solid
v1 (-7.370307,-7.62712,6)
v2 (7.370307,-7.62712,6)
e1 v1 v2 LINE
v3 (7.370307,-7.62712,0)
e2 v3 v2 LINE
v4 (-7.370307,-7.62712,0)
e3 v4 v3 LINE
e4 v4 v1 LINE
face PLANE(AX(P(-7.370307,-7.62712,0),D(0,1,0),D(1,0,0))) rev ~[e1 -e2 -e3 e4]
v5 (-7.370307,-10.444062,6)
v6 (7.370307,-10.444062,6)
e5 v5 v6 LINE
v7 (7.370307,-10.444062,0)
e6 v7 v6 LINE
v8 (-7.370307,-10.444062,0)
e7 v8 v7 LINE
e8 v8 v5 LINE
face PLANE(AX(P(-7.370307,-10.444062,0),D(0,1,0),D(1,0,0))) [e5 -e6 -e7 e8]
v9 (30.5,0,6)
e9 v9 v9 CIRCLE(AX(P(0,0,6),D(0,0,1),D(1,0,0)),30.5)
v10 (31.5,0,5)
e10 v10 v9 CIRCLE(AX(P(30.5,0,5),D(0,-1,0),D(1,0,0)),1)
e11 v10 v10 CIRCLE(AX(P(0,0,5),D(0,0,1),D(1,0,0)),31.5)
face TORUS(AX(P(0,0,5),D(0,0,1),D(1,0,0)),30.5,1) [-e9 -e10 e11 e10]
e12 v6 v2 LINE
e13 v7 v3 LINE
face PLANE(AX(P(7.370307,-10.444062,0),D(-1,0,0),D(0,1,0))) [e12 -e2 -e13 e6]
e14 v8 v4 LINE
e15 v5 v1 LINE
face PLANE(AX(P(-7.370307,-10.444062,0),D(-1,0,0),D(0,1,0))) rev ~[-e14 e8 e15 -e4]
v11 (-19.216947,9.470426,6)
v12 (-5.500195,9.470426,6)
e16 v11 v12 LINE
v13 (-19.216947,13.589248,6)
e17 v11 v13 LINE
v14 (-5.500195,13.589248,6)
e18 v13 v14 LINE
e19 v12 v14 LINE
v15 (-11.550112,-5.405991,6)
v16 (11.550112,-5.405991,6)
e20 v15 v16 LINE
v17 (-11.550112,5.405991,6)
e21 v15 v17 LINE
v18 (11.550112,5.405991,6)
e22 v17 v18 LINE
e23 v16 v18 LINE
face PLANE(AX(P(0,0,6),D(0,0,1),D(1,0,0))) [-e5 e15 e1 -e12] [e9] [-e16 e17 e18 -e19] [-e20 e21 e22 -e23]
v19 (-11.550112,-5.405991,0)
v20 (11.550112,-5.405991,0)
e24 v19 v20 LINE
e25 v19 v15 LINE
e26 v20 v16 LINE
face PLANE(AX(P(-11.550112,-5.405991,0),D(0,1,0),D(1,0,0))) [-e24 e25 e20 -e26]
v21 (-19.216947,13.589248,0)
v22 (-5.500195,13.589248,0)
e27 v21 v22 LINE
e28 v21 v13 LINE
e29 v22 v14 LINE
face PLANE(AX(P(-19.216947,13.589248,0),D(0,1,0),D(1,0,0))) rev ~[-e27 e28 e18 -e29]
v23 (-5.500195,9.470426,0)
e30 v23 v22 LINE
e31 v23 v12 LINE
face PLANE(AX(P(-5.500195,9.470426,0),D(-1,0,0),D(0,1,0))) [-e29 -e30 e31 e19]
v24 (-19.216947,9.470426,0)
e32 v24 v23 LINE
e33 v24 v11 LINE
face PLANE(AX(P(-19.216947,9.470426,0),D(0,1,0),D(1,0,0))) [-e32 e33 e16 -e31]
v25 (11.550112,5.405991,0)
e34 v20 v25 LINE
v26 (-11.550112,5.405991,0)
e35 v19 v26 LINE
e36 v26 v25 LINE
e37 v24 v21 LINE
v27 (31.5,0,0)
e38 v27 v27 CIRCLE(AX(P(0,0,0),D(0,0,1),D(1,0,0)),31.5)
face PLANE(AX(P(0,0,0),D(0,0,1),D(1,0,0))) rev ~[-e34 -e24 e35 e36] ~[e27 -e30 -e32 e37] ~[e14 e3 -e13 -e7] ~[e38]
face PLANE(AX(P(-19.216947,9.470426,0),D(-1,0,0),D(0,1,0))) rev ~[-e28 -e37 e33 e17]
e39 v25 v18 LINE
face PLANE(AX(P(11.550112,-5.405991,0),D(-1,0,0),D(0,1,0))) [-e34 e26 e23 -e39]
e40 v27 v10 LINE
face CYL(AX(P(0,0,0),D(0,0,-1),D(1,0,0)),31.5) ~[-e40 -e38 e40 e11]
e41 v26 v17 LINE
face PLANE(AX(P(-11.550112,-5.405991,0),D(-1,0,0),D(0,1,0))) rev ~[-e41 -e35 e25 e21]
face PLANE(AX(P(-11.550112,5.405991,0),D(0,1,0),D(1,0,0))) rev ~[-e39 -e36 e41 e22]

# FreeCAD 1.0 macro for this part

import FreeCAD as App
import Part
import Sketcher


def edges_at(feature, points):
    """Names of the edges that pass closest to the given points."""
    edges = feature.Shape.Edges
    near = lambda p: min(range(len(edges)), key=lambda i: edges[i].distToShape(Part.Vertex(*p))[0])
    return sorted({f"Edge{near(p) + 1}" for p in points})


def add_polygon(sketch, points):
    """Adds a closed chain of lines whose ends are joined by coincident constraints."""
    first, n = sketch.GeometryCount, len(points)
    for a, b in zip(points, points[1:] + points[:1]):
        sketch.addGeometry(Part.LineSegment(App.Vector(*a, 0), App.Vector(*b, 0)), False)
    for i in range(n):
        sketch.addConstraint(Sketcher.Constraint("Coincident", first + i, 2, first + (i + 1) % n, 1))

doc = App.newDocument("Part")
body = doc.addObject("PartDesign::Body", "Body")

sketch1 = doc.addObject("Sketcher::SketchObject", "Sketch")
body.addObject(sketch1)
sketch1.AttachmentSupport = (doc.XY_Plane, [""])
sketch1.MapMode = "FlatFace"
sketch1.addGeometry(Part.Circle(App.Vector(0, 0, 0), App.Vector(0, 0, 1), 31.5), False)
add_polygon(sketch1, [(7.4, -10.4), (-7.4, -10.4), (-7.4, -7.6), (7.4, -7.6)])
add_polygon(sketch1, [(11.6, -5.4), (-11.6, -5.4), (-11.6, 5.4), (11.6, 5.4)])
add_polygon(sketch1, [(-5.5, 9.5), (-19.2, 9.5), (-19.2, 13.6), (-5.5, 13.6)])
sketch1.addConstraint([
    Sketcher.Constraint("Horizontal", 1),
    Sketcher.Constraint("Vertical", 2),
    Sketcher.Constraint("Horizontal", 3),
    Sketcher.Constraint("Vertical", 4),
    Sketcher.Constraint("Horizontal", 5),
    Sketcher.Constraint("Vertical", 6),
    Sketcher.Constraint("Horizontal", 7),
    Sketcher.Constraint("Vertical", 8),
    Sketcher.Constraint("Horizontal", 9),
    Sketcher.Constraint("Vertical", 10),
    Sketcher.Constraint("Horizontal", 11),
    Sketcher.Constraint("Vertical", 12),
    Sketcher.Constraint("Coincident", 0, 3, -1, 1),
    Sketcher.Constraint("Symmetric", 5, 2, 7, 2, -1, 1),
    Sketcher.Constraint("Diameter", 0, 63.0),
    Sketcher.Constraint("DistanceY", 10, 1, 10, 2, 4.118822),
    Sketcher.Constraint("DistanceX", 1, 2, 1, 1, 14.740614),
    Sketcher.Constraint("DistanceX", 5, 2, 5, 1, 23.100224),
    Sketcher.Constraint("DistanceX", 9, 2, 9, 1, 13.716752),
    Sketcher.Constraint("DistanceY", 2, 1, 2, 2, 2.816942),
    Sketcher.Constraint("DistanceY", 6, 1, 6, 2, 10.811982),
    Sketcher.Constraint("DistanceY", 2, 2, -1, 1, 7.62712),
    Sketcher.Constraint("DistanceX", 5, 2, 3, 2, 18.920419),
    Sketcher.Constraint("DistanceX", 9, 2, 2, 2, 11.84664),
    Sketcher.Constraint("DistanceY", 5, 2, 10, 2, 18.995239),
])
pad1 = doc.addObject("PartDesign::Pad", "Pad")
body.addObject(pad1)
pad1.Profile = sketch1
pad1.Length = 6
doc.recompute()

fillet = doc.addObject("PartDesign::Fillet", "Fillet")
body.addObject(fillet)
fillet.Base = (pad1, edges_at(pad1, [(-31.5, 0, 6)]))
fillet.Radius = 1

doc.recompute()
